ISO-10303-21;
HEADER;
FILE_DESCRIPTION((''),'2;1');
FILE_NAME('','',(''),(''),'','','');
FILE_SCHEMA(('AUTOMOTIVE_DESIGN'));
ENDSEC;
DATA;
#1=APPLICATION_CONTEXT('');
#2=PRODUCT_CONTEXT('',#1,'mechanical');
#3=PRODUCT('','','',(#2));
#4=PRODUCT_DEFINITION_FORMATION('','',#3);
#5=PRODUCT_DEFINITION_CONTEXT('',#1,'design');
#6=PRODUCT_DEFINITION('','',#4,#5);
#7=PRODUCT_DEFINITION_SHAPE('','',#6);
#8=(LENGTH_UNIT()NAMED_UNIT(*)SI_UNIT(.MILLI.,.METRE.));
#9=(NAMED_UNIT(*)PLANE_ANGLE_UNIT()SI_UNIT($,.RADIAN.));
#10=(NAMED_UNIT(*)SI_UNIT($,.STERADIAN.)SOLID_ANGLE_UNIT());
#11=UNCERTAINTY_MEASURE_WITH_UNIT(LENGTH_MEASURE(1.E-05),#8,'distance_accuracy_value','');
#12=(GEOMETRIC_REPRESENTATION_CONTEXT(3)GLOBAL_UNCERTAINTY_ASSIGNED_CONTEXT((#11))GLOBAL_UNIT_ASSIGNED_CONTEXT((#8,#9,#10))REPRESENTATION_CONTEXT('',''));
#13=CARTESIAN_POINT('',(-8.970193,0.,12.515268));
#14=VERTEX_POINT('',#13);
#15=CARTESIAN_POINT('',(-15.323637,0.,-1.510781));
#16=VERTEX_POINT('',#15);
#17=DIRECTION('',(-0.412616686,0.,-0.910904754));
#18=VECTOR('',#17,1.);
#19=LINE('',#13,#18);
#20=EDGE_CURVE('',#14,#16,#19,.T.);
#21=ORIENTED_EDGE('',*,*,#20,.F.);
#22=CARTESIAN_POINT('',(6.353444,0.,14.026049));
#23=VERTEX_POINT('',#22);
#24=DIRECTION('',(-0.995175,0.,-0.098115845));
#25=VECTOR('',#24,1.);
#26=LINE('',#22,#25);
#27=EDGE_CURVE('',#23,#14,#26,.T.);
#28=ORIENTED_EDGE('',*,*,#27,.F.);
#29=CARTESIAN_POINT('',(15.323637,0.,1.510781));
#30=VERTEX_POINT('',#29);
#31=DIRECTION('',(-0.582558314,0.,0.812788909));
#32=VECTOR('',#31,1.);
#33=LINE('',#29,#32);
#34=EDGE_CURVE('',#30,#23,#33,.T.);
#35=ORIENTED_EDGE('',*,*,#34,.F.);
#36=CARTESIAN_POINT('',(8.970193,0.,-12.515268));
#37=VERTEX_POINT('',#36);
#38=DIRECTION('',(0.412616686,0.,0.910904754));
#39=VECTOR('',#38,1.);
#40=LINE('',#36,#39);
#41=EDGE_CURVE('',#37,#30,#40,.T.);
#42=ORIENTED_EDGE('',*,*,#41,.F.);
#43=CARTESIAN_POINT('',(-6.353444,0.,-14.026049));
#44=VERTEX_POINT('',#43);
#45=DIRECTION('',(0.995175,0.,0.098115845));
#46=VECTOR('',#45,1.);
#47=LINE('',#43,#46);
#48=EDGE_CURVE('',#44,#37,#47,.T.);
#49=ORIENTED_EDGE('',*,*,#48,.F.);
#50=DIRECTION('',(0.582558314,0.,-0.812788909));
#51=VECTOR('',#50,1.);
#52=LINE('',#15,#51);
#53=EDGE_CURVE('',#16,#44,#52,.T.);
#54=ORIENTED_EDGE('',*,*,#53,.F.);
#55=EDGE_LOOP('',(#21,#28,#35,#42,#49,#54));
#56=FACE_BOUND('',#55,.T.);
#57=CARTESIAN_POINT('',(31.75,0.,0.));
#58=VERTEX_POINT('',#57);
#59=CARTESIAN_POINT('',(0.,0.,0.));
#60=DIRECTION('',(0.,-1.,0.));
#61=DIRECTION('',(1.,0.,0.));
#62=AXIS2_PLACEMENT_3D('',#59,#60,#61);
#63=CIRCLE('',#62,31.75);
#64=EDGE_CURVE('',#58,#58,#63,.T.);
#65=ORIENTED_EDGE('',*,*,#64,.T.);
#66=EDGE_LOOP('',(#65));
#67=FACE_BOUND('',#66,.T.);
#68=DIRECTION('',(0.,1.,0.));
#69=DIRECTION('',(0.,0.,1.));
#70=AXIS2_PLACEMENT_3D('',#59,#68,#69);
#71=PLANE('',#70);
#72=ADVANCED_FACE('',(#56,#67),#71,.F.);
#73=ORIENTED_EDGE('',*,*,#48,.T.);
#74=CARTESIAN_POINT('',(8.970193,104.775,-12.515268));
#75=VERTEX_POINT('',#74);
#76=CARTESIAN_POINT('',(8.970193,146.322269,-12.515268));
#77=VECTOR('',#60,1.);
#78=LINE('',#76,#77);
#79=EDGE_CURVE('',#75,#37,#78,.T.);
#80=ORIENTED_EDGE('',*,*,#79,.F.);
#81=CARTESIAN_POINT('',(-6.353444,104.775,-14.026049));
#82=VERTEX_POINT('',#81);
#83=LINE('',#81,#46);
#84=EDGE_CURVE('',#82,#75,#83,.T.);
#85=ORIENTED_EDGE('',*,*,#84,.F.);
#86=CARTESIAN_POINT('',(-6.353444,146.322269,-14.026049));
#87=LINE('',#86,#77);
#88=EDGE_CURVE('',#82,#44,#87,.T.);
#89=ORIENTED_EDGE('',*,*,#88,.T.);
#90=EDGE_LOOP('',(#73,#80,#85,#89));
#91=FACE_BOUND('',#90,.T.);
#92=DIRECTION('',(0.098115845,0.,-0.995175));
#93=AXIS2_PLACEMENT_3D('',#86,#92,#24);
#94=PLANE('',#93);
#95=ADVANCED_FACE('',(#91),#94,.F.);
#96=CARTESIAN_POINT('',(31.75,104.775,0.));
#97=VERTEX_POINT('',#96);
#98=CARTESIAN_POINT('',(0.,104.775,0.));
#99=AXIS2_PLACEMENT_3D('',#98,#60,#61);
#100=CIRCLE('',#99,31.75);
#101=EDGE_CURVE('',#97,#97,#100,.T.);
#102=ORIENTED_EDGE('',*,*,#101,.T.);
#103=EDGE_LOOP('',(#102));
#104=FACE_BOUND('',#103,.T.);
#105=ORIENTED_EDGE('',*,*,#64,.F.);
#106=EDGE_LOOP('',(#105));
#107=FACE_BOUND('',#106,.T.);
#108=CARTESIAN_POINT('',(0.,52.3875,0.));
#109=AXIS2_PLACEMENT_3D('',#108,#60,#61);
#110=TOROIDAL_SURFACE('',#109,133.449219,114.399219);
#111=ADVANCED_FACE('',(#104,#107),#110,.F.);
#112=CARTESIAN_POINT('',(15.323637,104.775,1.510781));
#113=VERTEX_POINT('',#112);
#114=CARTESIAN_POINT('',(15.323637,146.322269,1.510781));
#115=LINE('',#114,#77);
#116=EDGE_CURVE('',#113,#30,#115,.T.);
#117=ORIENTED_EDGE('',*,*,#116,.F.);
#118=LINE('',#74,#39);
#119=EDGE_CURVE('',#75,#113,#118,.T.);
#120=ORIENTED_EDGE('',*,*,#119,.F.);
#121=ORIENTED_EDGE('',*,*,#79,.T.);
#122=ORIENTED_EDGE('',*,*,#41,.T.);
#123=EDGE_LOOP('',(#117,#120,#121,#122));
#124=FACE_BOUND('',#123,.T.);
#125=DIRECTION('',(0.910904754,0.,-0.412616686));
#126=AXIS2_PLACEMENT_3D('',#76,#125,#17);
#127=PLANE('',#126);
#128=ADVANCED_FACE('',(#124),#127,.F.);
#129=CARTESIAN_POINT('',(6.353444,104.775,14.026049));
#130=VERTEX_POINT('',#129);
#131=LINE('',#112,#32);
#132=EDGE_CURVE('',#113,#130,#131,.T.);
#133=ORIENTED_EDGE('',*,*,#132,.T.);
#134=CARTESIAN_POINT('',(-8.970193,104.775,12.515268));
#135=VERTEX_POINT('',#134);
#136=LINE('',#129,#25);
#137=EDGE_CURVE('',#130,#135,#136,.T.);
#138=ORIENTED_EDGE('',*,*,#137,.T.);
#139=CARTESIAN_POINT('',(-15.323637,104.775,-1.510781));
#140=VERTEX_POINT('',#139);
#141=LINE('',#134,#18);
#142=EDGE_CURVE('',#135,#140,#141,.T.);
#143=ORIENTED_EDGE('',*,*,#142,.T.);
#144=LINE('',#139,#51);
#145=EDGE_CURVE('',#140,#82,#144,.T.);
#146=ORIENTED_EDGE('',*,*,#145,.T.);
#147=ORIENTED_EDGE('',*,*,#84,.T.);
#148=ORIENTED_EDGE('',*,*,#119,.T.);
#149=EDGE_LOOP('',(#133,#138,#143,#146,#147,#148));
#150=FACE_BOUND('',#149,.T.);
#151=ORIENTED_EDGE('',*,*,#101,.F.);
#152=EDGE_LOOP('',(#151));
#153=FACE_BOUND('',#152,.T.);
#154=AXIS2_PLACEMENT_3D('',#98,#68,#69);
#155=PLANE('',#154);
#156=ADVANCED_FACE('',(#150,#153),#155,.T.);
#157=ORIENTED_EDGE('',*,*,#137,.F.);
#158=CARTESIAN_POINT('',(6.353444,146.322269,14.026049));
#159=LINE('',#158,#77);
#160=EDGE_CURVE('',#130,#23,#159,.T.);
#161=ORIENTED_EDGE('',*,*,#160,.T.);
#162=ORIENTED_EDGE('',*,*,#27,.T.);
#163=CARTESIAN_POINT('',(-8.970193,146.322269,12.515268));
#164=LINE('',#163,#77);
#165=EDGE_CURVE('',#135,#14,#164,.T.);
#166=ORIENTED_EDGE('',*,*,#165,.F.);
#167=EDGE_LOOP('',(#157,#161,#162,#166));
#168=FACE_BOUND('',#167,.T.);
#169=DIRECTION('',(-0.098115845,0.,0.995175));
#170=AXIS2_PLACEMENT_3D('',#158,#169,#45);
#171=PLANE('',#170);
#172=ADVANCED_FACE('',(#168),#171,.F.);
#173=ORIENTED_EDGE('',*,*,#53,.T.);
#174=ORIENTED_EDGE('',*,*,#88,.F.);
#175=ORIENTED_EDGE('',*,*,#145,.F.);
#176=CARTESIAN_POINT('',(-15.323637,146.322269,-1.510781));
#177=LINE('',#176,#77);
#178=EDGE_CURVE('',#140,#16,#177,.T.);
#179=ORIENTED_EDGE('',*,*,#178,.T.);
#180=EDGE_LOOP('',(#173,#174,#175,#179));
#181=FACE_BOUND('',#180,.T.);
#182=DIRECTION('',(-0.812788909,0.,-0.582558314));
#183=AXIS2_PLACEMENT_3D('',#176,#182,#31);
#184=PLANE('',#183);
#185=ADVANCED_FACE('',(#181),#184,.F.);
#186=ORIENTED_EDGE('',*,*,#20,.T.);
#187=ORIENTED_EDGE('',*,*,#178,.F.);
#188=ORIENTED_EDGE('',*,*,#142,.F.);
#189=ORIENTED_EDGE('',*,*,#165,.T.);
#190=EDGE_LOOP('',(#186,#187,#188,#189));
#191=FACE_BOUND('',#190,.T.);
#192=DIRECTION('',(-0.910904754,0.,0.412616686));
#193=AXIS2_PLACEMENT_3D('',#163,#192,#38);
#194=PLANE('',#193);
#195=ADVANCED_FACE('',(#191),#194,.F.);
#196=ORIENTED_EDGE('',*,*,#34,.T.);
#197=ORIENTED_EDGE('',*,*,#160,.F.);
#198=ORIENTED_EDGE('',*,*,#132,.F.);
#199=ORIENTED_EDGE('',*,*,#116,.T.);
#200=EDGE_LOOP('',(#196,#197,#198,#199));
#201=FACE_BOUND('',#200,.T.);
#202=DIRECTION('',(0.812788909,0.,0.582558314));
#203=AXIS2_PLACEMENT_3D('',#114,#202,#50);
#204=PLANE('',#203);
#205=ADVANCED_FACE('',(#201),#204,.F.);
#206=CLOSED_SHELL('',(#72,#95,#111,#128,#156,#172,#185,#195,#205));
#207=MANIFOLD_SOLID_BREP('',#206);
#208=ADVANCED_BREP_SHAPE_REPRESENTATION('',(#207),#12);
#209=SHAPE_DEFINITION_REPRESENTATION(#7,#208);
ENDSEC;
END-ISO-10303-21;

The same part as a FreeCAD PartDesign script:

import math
import FreeCAD as App
import Part
import Sketcher
from FreeCAD import Vector
Q = App.Units.Quantity

doc = App.newDocument("Part")
body = doc.addObject("PartDesign::Body", "Body")

# Sketch on XZ plane
sketch1 = body.newObject("Sketcher::SketchObject", "Sketch")
sketch1.AttachmentSupport = (doc.getObject("XZ_Plane"), [""])
sketch1.MapMode = "FlatFace"
sketch1.addGeometry(Part.Circle(Vector(0, 0, 0), Vector(0, 0, 1), 19.05), False)
sketch1.addConstraint(Sketcher.Constraint("Coincident", 0, 3, -1, 1))
sketch1.addConstraint(Sketcher.Constraint("Diameter", 0, Q("1.5 in")))
pad1 = body.newObject("PartDesign::Pad", "Pad")
pad1.Profile = sketch1
pad1.Length = Q("4.125 in")
pad1.Reversed = True

# Sketch on XZ plane
sketch2 = body.newObject("Sketcher::SketchObject", "Sketch001")
sketch2.AttachmentSupport = (doc.getObject("XZ_Plane"), [""])
sketch2.MapMode = "FlatFace"
sketch2.addGeometry(Part.LineSegment(Vector(-15.323637, -1.510781, 0), Vector(-6.353444, -14.026049, 0)), False)
sketch2.addGeometry(Part.LineSegment(Vector(-6.353444, -14.026049, 0), Vector(8.970193, -12.515268, 0)), False)
sketch2.addGeometry(Part.LineSegment(Vector(8.970193, -12.515268, 0), Vector(15.323637, 1.510781, 0)), False)
sketch2.addGeometry(Part.LineSegment(Vector(15.323637, 1.510781, 0), Vector(6.353444, 14.026049, 0)), False)
sketch2.addGeometry(Part.LineSegment(Vector(6.353444, 14.026049, 0), Vector(-8.970193, 12.515268, 0)), False)
sketch2.addGeometry(Part.LineSegment(Vector(-8.970193, 12.515268, 0), Vector(-15.323637, -1.510781, 0)), False)
sketch2.addConstraint(Sketcher.Constraint("Coincident", 0, 2, 1, 1))
sketch2.addConstraint(Sketcher.Constraint("Coincident", 1, 2, 2, 1))
sketch2.addConstraint(Sketcher.Constraint("Coincident", 2, 2, 3, 1))
sketch2.addConstraint(Sketcher.Constraint("Coincident", 3, 2, 4, 1))
sketch2.addConstraint(Sketcher.Constraint("Coincident", 4, 2, 5, 1))
sketch2.addConstraint(Sketcher.Constraint("Coincident", 5, 2, 0, 1))
sketch2.addConstraint(Sketcher.Constraint("Symmetric", 0, 2, 3, 2, -1, 1))
sketch2.addConstraint(Sketcher.Constraint("Symmetric", 1, 2, 4, 2, -1, 1))
sketch2.addConstraint(Sketcher.Constraint("Symmetric", 2, 2, 5, 2, -1, 1))
sketch2.addConstraint(Sketcher.Constraint("Equal", 0, 1))
sketch2.addConstraint(Sketcher.Constraint("Equal", 1, 2))
sketch2.addConstraint(Sketcher.Constraint("DistanceY", 0, 2, 3, 2, Q("28.052098 mm")))
sketch2.addConstraint(Sketcher.Constraint("Distance", 0, Q("15.397932 mm")))
sketch2.addConstraint(Sketcher.Constraint("DistanceY", 1, 2, -1, 1, Q("12.515268 mm")))
sketch2.addConstraint(Sketcher.Constraint("DistanceY", -1, 1, 2, 2, Q("1.510781 mm")))
pocket1 = body.newObject("PartDesign::Pocket", "Pocket")
pocket1.Profile = sketch2
pocket1.Length = Q("4.125 in")

# Sketch on XY plane
sketch3 = body.newObject("Sketcher::SketchObject", "Sketch002")
sketch3.AttachmentSupport = (doc.getObject("XY_Plane"), [""])
sketch3.MapMode = "FlatFace"
sketch3.addGeometry(Part.LineSegment(Vector(-19.05, 52.3875, 0), Vector(-19.05, 104.775, 0)), False)
sketch3.addGeometry(Part.LineSegment(Vector(-19.05, 104.775, 0), Vector(-31.75, 104.775, 0)), False)
sketch3.addGeometry(Part.ArcOfCircle(Part.Circle(Vector(-133.449219, 52.3875, 0), Vector(0, 0, 1), 114.399219), math.radians(0), math.radians(27.25399)), False)
sketch3.addGeometry(Part.LineSegment(Vector(-19.05, 0, 0), Vector(-19.05, 52.3875, 0)), False)
sketch3.addGeometry(Part.ArcOfCircle(Part.Circle(Vector(-133.449219, 52.3875, 0), Vector(0, 0, 1), 114.399219), math.radians(-27.25399), math.radians(0)), False)
sketch3.addGeometry(Part.LineSegment(Vector(-31.75, 0, 0), Vector(-19.05, 0, 0)), False)
sketch3.addConstraint(Sketcher.Constraint("Coincident", 0, 2, 1, 1))
sketch3.addConstraint(Sketcher.Constraint("Coincident", 1, 2, 2, 2))
sketch3.addConstraint(Sketcher.Constraint("Tangent", 2, 1, 0, 1))
sketch3.addConstraint(Sketcher.Constraint("Tangent", 3, 2, 4, 2))
sketch3.addConstraint(Sketcher.Constraint("Coincident", 4, 1, 5, 1))
sketch3.addConstraint(Sketcher.Constraint("Coincident", 5, 2, 3, 1))
sketch3.addConstraint(Sketcher.Constraint("Vertical", 0))
sketch3.addConstraint(Sketcher.Constraint("Horizontal", 1))
sketch3.addConstraint(Sketcher.Constraint("Vertical", 3))
sketch3.addConstraint(Sketcher.Constraint("Horizontal", 5))
sketch3.addConstraint(Sketcher.Constraint("Coincident", 4, 3, 2, 3))
sketch3.addConstraint(Sketcher.Constraint("Equal", 2, 4))
sketch3.addConstraint(Sketcher.Constraint("PointOnObject", 4, 1, -1))
sketch3.addConstraint(Sketcher.Constraint("Vertical", 1, 2, 4, 1))
sketch3.addConstraint(Sketcher.Constraint("DistanceX", 1, 2, 1, 1, Q("0.5 in")))
sketch3.addConstraint(Sketcher.Constraint("DistanceY", 0, 1, 0, 2, Q("2.0625 in")))
sketch3.addConstraint(Sketcher.Constraint("DistanceX", 0, 2, -1, 1, Q("0.75 in")))
revolution = body.newObject("PartDesign::Revolution", "Revolution")
revolution.Profile = sketch3
revolution.ReferenceAxis = (sketch3, ["V_Axis"])
revolution.Angle = 360

doc.recompute()
